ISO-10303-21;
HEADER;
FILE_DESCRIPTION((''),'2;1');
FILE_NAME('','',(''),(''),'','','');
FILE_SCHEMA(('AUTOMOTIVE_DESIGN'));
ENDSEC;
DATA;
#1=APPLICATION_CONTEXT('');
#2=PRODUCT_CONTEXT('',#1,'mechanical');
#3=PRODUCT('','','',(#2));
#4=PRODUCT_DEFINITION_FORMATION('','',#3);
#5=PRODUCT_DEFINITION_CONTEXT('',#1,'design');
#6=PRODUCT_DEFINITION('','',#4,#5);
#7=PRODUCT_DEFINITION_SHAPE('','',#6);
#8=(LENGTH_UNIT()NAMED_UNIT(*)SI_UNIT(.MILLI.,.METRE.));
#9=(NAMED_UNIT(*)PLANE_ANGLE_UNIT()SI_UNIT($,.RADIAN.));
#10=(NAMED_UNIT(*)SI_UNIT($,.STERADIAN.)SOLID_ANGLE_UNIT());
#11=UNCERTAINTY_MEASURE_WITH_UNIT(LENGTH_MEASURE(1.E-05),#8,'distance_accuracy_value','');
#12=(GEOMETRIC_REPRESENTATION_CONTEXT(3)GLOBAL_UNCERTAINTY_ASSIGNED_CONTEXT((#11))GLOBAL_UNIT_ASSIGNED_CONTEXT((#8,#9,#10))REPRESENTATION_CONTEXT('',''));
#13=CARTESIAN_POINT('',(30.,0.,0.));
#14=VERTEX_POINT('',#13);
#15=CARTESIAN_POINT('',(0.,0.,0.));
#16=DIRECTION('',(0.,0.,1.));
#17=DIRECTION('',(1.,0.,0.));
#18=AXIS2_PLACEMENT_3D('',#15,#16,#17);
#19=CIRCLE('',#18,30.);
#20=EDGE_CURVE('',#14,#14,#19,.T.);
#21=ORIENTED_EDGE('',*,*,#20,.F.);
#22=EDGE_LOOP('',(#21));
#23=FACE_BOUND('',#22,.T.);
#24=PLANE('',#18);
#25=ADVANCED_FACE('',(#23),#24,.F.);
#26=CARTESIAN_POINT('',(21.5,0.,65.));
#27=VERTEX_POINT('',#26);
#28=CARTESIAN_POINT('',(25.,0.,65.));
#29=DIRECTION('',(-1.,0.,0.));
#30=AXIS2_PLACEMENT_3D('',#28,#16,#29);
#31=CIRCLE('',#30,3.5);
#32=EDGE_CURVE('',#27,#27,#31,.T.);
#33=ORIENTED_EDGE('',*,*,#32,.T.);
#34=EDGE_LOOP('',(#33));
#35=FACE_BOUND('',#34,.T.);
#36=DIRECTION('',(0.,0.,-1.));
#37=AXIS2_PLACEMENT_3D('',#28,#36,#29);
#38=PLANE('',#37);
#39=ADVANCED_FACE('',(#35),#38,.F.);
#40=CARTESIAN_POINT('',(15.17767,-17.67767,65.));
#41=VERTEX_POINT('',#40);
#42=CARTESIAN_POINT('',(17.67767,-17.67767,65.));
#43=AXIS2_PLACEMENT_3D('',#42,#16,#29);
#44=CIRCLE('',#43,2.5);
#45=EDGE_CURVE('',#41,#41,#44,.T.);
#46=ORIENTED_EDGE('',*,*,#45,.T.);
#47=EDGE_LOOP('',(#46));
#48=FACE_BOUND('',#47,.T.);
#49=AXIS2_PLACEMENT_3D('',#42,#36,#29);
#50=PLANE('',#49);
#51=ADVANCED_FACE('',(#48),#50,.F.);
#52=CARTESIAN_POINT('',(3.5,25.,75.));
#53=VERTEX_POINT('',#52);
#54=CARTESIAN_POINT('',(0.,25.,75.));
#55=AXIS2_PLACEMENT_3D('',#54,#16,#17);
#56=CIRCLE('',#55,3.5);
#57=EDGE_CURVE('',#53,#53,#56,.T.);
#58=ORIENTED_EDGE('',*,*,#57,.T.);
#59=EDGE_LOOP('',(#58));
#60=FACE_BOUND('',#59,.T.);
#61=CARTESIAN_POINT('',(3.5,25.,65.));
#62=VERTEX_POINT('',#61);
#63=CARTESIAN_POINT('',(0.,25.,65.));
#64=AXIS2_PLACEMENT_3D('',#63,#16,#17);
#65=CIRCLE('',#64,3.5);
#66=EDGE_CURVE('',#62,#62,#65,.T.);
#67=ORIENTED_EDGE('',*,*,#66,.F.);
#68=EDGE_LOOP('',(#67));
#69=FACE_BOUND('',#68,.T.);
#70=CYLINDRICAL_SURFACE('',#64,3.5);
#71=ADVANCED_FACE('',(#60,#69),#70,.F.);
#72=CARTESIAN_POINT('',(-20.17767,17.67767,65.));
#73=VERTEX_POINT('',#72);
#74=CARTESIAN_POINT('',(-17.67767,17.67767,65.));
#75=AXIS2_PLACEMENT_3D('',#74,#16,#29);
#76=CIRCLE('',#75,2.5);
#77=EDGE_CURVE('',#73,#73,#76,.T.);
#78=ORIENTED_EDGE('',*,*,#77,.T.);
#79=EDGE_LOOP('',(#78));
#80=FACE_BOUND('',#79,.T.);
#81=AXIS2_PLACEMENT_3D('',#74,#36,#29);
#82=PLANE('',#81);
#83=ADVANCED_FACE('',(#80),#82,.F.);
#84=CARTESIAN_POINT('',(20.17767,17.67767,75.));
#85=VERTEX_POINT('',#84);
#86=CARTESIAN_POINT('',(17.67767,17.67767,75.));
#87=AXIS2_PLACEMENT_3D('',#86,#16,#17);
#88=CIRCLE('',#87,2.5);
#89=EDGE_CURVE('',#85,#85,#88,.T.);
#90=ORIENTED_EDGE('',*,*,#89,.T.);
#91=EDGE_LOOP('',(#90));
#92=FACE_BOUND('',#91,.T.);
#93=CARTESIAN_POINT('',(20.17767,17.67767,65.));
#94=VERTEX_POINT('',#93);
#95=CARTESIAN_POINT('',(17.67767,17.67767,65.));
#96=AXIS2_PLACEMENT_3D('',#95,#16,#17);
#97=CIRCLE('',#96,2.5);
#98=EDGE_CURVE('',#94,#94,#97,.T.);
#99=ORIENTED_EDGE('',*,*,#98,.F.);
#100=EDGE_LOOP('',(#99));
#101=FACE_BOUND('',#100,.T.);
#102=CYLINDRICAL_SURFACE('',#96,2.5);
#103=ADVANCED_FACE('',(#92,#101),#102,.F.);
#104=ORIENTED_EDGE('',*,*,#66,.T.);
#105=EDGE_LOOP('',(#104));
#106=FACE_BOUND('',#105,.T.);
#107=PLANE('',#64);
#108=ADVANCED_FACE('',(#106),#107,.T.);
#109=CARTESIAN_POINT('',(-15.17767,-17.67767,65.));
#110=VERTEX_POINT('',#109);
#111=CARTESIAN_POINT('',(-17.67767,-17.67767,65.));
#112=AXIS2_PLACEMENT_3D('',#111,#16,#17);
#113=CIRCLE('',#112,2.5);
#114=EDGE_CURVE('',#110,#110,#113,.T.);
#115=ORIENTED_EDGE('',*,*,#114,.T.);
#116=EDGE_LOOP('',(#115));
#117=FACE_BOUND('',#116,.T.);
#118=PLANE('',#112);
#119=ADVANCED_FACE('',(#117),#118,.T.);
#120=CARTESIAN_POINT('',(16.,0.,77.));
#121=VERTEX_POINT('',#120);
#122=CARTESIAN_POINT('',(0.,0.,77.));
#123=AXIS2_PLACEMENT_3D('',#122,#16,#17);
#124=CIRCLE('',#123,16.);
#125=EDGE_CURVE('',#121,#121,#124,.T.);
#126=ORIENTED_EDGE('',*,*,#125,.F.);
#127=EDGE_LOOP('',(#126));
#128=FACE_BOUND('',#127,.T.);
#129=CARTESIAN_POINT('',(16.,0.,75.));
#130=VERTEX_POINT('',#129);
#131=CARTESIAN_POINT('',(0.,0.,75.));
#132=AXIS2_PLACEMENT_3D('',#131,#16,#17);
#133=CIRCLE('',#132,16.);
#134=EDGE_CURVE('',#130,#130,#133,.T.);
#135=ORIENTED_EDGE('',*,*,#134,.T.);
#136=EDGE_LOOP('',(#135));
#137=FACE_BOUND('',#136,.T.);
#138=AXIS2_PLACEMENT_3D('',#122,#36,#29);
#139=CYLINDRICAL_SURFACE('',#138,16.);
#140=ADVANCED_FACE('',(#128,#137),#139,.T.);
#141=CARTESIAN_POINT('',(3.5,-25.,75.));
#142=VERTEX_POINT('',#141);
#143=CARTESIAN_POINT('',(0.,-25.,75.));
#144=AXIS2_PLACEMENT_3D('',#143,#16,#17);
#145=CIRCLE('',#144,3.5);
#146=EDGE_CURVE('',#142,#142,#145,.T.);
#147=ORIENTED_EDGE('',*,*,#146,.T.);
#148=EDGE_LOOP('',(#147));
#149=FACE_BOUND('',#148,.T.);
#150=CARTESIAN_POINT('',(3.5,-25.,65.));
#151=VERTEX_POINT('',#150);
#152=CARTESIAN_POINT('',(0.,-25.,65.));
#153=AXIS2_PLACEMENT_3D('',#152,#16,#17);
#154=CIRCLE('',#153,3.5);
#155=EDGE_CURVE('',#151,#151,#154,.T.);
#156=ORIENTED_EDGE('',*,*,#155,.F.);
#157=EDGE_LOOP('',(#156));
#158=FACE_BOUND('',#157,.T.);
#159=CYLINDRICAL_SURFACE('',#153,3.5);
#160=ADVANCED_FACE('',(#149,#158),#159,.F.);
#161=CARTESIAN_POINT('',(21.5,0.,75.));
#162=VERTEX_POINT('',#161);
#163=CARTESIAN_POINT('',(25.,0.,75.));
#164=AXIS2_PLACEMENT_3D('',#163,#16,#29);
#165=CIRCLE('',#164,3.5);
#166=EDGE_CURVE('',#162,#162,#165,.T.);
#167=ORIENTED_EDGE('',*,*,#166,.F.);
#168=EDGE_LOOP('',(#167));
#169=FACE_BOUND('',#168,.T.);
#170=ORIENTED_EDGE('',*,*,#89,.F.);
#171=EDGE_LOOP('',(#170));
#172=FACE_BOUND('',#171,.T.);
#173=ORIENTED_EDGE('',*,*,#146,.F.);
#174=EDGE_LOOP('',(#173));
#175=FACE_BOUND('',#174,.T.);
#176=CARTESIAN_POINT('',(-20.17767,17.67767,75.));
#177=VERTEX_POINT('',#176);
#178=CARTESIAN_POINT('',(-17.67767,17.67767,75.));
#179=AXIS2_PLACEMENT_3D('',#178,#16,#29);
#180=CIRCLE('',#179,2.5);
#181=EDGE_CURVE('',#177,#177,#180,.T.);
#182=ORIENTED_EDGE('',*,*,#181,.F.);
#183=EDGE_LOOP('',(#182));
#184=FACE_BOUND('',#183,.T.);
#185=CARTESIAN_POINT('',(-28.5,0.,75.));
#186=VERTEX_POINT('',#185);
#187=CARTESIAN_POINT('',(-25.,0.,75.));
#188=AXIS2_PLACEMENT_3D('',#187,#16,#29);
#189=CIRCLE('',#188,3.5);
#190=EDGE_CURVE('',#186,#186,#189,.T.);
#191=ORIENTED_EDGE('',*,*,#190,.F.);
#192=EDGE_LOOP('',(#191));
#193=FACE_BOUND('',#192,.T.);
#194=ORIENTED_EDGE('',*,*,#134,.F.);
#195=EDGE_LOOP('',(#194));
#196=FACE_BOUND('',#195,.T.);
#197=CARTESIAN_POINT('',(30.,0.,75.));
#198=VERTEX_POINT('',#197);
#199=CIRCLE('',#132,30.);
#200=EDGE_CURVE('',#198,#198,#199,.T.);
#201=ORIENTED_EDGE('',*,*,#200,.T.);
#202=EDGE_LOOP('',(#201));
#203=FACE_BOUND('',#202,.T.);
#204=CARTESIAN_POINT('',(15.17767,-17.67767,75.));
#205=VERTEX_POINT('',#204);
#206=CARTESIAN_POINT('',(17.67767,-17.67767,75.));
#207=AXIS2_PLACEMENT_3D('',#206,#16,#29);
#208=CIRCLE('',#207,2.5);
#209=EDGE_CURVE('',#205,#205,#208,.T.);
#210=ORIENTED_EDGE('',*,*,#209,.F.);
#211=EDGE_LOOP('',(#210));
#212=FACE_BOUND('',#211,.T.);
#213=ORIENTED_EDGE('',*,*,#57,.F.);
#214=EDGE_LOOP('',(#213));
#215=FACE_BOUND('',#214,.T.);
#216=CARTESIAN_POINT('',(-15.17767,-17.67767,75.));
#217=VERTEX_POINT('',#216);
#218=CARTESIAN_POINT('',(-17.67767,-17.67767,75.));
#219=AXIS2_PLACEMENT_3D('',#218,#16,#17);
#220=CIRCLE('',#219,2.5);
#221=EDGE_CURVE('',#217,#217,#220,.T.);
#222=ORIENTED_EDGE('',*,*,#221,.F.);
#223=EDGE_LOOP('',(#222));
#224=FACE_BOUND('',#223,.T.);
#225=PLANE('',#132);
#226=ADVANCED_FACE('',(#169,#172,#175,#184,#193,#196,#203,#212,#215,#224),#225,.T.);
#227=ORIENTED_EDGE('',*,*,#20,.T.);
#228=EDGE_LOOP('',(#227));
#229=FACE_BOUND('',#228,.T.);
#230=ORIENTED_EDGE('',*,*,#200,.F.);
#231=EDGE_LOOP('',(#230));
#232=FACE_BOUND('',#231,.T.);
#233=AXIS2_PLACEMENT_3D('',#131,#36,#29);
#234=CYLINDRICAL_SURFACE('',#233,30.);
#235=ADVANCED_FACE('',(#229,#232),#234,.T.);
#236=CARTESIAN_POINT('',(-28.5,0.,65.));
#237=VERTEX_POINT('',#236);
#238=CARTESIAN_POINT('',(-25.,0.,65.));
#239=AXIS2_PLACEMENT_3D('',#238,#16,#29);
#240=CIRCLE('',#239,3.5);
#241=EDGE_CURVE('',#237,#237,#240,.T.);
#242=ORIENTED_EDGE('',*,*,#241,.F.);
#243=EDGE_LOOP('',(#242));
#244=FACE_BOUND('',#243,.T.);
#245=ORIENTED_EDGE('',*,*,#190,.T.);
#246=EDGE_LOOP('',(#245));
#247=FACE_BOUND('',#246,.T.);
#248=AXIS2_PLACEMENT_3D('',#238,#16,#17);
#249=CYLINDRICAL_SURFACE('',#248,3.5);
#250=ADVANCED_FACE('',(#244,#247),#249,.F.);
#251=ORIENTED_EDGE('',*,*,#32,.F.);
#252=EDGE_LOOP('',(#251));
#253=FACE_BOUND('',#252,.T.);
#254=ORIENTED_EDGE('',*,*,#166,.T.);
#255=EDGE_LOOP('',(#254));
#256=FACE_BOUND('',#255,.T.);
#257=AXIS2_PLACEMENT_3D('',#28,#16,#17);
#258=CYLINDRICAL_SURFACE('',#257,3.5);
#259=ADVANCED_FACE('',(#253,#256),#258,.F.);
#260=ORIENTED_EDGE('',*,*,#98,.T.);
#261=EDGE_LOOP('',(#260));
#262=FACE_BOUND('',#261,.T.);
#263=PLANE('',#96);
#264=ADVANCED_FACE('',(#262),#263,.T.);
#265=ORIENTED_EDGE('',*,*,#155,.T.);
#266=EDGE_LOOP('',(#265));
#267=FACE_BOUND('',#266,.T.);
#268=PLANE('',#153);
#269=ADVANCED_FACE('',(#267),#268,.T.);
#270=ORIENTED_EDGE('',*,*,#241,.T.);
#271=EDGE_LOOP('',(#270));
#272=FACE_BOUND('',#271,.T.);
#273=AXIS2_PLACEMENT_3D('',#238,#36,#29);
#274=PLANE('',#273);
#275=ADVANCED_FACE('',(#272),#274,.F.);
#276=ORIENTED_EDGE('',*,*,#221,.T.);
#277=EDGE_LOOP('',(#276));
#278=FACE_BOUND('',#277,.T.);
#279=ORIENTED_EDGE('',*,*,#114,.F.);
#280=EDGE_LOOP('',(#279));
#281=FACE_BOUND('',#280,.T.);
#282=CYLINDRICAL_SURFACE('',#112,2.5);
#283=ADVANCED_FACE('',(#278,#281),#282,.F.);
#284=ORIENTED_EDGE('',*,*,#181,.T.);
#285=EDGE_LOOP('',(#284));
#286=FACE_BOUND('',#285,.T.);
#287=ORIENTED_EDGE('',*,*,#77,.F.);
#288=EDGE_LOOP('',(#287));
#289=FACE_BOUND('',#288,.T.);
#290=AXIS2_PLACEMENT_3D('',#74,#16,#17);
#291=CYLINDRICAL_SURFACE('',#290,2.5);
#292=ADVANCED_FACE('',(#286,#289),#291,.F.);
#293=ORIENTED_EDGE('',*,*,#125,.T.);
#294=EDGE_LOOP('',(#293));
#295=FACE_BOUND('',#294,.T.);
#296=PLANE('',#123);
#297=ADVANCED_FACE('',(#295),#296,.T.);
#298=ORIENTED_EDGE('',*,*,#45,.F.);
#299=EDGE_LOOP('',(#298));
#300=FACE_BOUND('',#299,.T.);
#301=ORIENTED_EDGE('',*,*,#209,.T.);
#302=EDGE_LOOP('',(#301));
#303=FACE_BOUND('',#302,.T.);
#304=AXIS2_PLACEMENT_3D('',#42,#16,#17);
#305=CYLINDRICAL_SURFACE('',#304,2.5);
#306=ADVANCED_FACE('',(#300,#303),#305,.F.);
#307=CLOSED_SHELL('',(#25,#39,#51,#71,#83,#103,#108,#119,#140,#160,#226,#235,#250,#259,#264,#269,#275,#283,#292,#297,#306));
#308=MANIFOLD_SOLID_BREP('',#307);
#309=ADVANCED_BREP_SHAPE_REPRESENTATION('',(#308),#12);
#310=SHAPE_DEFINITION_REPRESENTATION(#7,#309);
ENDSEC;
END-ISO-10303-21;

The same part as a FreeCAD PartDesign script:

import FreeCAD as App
import Part
import Sketcher
from FreeCAD import Vector
Q = App.Units.Quantity

doc = App.newDocument("Part")
body = doc.addObject("PartDesign::Body", "Body")

sketch1 = body.newObject("Sketcher::SketchObject", "Sketch")
sketch1.AttachmentSupport = (doc.getObject("XY_Plane"), [""])
sketch1.MapMode = "FlatFace"
sketch1.addGeometry(Part.Circle(Vector(0, 0, 0), Vector(0, 0, 1), 30), False)
sketch1.addConstraint(Sketcher.Constraint("Coincident", 0, 3, -1, 1))
sketch1.addConstraint(Sketcher.Constraint("Diameter", 0, Q("60 mm")))
pad1 = body.newObject("PartDesign::Pad", "Pad")
pad1.Profile = sketch1
pad1.Length = 75

sketch2 = body.newObject("Sketcher::SketchObject", "Sketch001")
sketch2.AttachmentSupport = (doc.getObject("XY_Plane"), [""])
sketch2.MapMode = "FlatFace"
sketch2.AttachmentOffset = App.Placement(Vector(0, 0, 75), App.Rotation())
sketch2.addGeometry(Part.Circle(Vector(0, 25, 0), Vector(0, 0, 1), 3.5), False)
sketch2.addGeometry(Part.Circle(Vector(17.7, 17.7, 0), Vector(0, 0, 1), 2.5), False)
sketch2.addGeometry(Part.Circle(Vector(-17.7, 17.7, 0), Vector(0, 0, 1), 2.5), False)
sketch2.addGeometry(Part.Circle(Vector(17.7, -17.7, 0), Vector(0, 0, 1), 2.5), False)
sketch2.addGeometry(Part.Circle(Vector(-17.7, -17.7, 0), Vector(0, 0, 1), 2.5), False)
sketch2.addGeometry(Part.Circle(Vector(25, 0, 0), Vector(0, 0, 1), 3.5), False)
sketch2.addGeometry(Part.Circle(Vector(-25, 0, 0), Vector(0, 0, 1), 3.5), False)
sketch2.addGeometry(Part.Circle(Vector(0, -25, 0), Vector(0, 0, 1), 3.5), False)
sketch2.addConstraint(Sketcher.Constraint("Equal", 1, 2))
sketch2.addConstraint(Sketcher.Constraint("Equal", 2, 3))
sketch2.addConstraint(Sketcher.Constraint("Equal", 3, 4))
sketch2.addConstraint(Sketcher.Constraint("Equal", 0, 5))
sketch2.addConstraint(Sketcher.Constraint("Equal", 5, 6))
sketch2.addConstraint(Sketcher.Constraint("Equal", 6, 7))
sketch2.addConstraint(Sketcher.Constraint("Symmetric", 2, 3, 3, 3, -1, 1))
sketch2.addConstraint(Sketcher.Constraint("Symmetric", 1, 3, 4, 3, -1, 1))
sketch2.addConstraint(Sketcher.Constraint("Symmetric", 5, 3, 6, 3, -1, 1))
sketch2.addConstraint(Sketcher.Constraint("Symmetric", 0, 3, 7, 3, -1, 1))
sketch2.addConstraint(Sketcher.Constraint("Symmetric", 1, 3, 2, 3, -2))
sketch2.addConstraint(Sketcher.Constraint("PointOnObject", 0, 3, -2))
sketch2.addConstraint(Sketcher.Constraint("PointOnObject", 5, 3, -1))
sketch2.addConstraint(Sketcher.Constraint("Diameter", 0, Q("7 mm")))
sketch2.addConstraint(Sketcher.Constraint("Diameter", 1, Q("5 mm")))
sketch2.addConstraint(Sketcher.Constraint("DistanceY", -1, 1, 0, 3, Q("25 mm")))
sketch2.addConstraint(Sketcher.Constraint("DistanceX", -1, 1, 5, 3, Q("25 mm")))
sketch2.addConstraint(Sketcher.Constraint("DistanceX", -1, 1, 1, 3, Q("17.67767 mm")))
sketch2.addConstraint(Sketcher.Constraint("DistanceY", -1, 1, 1, 3, Q("17.67767 mm")))
pocket1 = body.newObject("PartDesign::Pocket", "Pocket")
pocket1.Profile = sketch2
pocket1.Length = 10

sketch3 = body.newObject("Sketcher::SketchObject", "Sketch002")
sketch3.AttachmentSupport = (doc.getObject("XY_Plane"), [""])
sketch3.MapMode = "FlatFace"
sketch3.AttachmentOffset = App.Placement(Vector(0, 0, 75), App.Rotation())
sketch3.addGeometry(Part.Circle(Vector(0, 0, 0), Vector(0, 0, 1), 16), False)
sketch3.addConstraint(Sketcher.Constraint("Coincident", 0, 3, -1, 1))
sketch3.addConstraint(Sketcher.Constraint("Diameter", 0, Q("32 mm")))
pad2 = body.newObject("PartDesign::Pad", "Pad001")
pad2.Profile = sketch3
pad2.Length = 2

doc.recompute()
